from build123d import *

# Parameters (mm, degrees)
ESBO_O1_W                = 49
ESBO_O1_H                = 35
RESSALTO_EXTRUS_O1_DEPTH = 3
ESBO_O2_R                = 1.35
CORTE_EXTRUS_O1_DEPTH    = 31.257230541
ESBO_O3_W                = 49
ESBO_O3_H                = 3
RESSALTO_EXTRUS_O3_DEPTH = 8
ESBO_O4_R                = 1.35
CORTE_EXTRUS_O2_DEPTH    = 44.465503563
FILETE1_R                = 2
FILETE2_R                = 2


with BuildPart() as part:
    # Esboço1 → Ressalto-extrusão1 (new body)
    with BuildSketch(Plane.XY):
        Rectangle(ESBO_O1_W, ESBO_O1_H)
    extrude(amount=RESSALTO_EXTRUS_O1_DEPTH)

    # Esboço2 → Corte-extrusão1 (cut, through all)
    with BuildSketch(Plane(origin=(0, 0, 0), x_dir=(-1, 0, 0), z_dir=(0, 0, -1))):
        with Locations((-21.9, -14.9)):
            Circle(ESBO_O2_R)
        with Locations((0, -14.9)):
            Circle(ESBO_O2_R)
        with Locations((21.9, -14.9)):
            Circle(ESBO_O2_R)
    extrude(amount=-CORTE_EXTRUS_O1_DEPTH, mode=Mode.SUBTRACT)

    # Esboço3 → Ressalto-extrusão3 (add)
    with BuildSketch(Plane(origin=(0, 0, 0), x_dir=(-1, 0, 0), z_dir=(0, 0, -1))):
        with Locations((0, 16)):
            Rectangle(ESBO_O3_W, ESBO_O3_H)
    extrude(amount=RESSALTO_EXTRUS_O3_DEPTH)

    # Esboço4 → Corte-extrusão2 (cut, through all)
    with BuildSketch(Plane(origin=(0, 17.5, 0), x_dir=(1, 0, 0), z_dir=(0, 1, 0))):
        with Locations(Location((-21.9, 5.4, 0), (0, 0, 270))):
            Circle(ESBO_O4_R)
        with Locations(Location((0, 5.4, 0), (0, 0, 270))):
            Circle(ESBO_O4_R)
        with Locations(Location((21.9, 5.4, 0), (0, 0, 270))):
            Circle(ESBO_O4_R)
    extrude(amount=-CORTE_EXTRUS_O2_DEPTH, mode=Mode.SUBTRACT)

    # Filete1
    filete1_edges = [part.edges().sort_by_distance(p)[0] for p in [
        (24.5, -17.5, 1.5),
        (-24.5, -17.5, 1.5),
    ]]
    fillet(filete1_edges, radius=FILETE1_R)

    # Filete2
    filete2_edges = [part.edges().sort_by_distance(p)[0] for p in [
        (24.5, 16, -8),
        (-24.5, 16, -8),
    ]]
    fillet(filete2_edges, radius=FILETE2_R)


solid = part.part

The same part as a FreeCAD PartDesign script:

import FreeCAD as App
import Part
import Sketcher

V = App.Vector
Q = App.Units.Quantity


def edges_at(feature, points):
    """Names of the edges that pass closest to the given points."""
    edges = feature.Shape.Edges
    near = lambda p: min(range(len(edges)), key=lambda i: edges[i].distToShape(Part.Vertex(*p))[0])
    return sorted({f"Edge{near(p) + 1}" for p in points})


def add_polygon(sketch, points):
    """Adds a closed chain of lines whose ends are joined by coincident constraints."""
    first, n = sketch.GeometryCount, len(points)
    for a, b in zip(points, points[1:] + points[:1]):
        sketch.addGeometry(Part.LineSegment(App.Vector(*a, 0), App.Vector(*b, 0)), False)
    for i in range(n):
        sketch.addConstraint(Sketcher.Constraint("Coincident", first + i, 2, first + (i + 1) % n, 1))

doc = App.newDocument("Part")
body = doc.addObject("PartDesign::Body", "Body")

# Sketch on XY plane
sketch1 = doc.addObject("Sketcher::SketchObject", "Sketch")
body.addObject(sketch1)
sketch1.AttachmentSupport = (doc.XY_Plane, [""])
sketch1.MapMode = "FlatFace"
add_polygon(sketch1, [(-24, 18), (-24, -18), (24, -18), (24, 18)])  # lines 0-3
sketch1.addConstraint(Sketcher.Constraint("Vertical", 0))
sketch1.addConstraint(Sketcher.Constraint("Horizontal", 1))
sketch1.addConstraint(Sketcher.Constraint("Vertical", 2))
sketch1.addConstraint(Sketcher.Constraint("Horizontal", 3))
sketch1.addConstraint(Sketcher.Constraint("Symmetric", 0, 2, 2, 2, -1, 1))
sketch1.addConstraint(Sketcher.Constraint("DistanceX", 1, 1, 1, 2, Q("49 mm")))
sketch1.addConstraint(Sketcher.Constraint("DistanceY", 0, 2, 0, 1, Q("35 mm")))
pad1 = doc.addObject("PartDesign::Pad", "Pad")
body.addObject(pad1)
pad1.Profile = sketch1
pad1.Length = 3

# Sketch on XY plane
sketch2 = doc.addObject("Sketcher::SketchObject", "Sketch001")
body.addObject(sketch2)
sketch2.AttachmentSupport = (doc.XY_Plane, [""])
sketch2.MapMode = "FlatFace"
sketch2.addGeometry(Part.Circle(V(21.9, -14.9, 0), V(0, 0, 1), 1.4), False)
sketch2.addGeometry(Part.Circle(V(0, -14.9, 0), V(0, 0, 1), 1.4), False)
sketch2.addGeometry(Part.Circle(V(-21.9, -14.9, 0), V(0, 0, 1), 1.4), False)
sketch2.addConstraint(Sketcher.Constraint("Equal", 0, 1))
sketch2.addConstraint(Sketcher.Constraint("Equal", 1, 2))
sketch2.addConstraint(Sketcher.Constraint("Symmetric", 0, 3, 2, 3, -2))
sketch2.addConstraint(Sketcher.Constraint("PointOnObject", 1, 3, -2))
sketch2.addConstraint(Sketcher.Constraint("Horizontal", 0, 3, 1, 3))
sketch2.addConstraint(Sketcher.Constraint("Diameter", 0, Q("2.7 mm")))
sketch2.addConstraint(Sketcher.Constraint("DistanceX", -1, 1, 0, 3, Q("21.9 mm")))
sketch2.addConstraint(Sketcher.Constraint("DistanceY", 0, 3, -1, 1, Q("14.9 mm")))
pocket1 = doc.addObject("PartDesign::Pocket", "Pocket")
body.addObject(pocket1)
pocket1.Profile = sketch2
pocket1.Type = "ThroughAll"
pocket1.Reversed = True

# Sketch on XY plane
sketch3 = doc.addObject("Sketcher::SketchObject", "Sketch002")
body.addObject(sketch3)
sketch3.AttachmentSupport = (doc.XY_Plane, [""])
sketch3.MapMode = "FlatFace"
add_polygon(sketch3, [(24.5, 17.5), (24.5, 14.5), (-24.5, 14.5), (-24.5, 17.5)])  # lines 0-3
sketch3.addConstraint(Sketcher.Constraint("Vertical", 0))
sketch3.addConstraint(Sketcher.Constraint("Horizontal", 1))
sketch3.addConstraint(Sketcher.Constraint("Vertical", 2))
sketch3.addConstraint(Sketcher.Constraint("Horizontal", 3))
sketch3.addConstraint(Sketcher.Constraint("DistanceX", 1, 2, 1, 1, Q("49 mm")))
sketch3.addConstraint(Sketcher.Constraint("DistanceY", 0, 2, 0, 1, Q("3 mm")))
sketch3.addConstraint(Sketcher.Constraint("DistanceX", -1, 1, 0, 2, Q("24.5 mm")))
sketch3.addConstraint(Sketcher.Constraint("DistanceY", -1, 1, 0, 2, Q("14.5 mm")))
pad2 = doc.addObject("PartDesign::Pad", "Pad001")
body.addObject(pad2)
pad2.Profile = sketch3
pad2.Length = 8
pad2.Reversed = True

# Sketch on XZ plane
sketch4 = doc.addObject("Sketcher::SketchObject", "Sketch003")
body.addObject(sketch4)
sketch4.AttachmentSupport = (doc.XZ_Plane, [""])
sketch4.MapMode = "FlatFace"
sketch4.AttachmentOffset = App.Placement(V(0, 0, -17.5), App.Rotation())
sketch4.addGeometry(Part.Circle(V(-21.9, -5.4, 0), V(0, 0, 1), 1.4), False)
sketch4.addGeometry(Part.Circle(V(0, -5.4, 0), V(0, 0, 1), 1.4), False)
sketch4.addGeometry(Part.Circle(V(21.9, -5.4, 0), V(0, 0, 1), 1.4), False)
sketch4.addConstraint(Sketcher.Constraint("Equal", 0, 1))
sketch4.addConstraint(Sketcher.Constraint("Equal", 1, 2))
sketch4.addConstraint(Sketcher.Constraint("Symmetric", 0, 3, 2, 3, -2))
sketch4.addConstraint(Sketcher.Constraint("PointOnObject", 1, 3, -2))
sketch4.addConstraint(Sketcher.Constraint("Horizontal", 0, 3, 1, 3))
sketch4.addConstraint(Sketcher.Constraint("Diameter", 0, Q("2.7 mm")))
sketch4.addConstraint(Sketcher.Constraint("DistanceX", 0, 3, -1, 1, Q("21.9 mm")))
sketch4.addConstraint(Sketcher.Constraint("DistanceY", 0, 3, -1, 1, Q("5.4 mm")))
pocket2 = doc.addObject("PartDesign::Pocket", "Pocket001")
body.addObject(pocket2)
pocket2.Profile = sketch4
pocket2.Type = "ThroughAll"
pocket2.Reversed = True
doc.recompute()

fillet = doc.addObject("PartDesign::Fillet", "Fillet")
body.addObject(fillet)
fillet.Base = (pocket2, edges_at(pocket2, [(24.5, -17.5, 1.5), (-24.5, -17.5, 1.5)]))
fillet.Radius = 2
doc.recompute()

fillet2 = doc.addObject("PartDesign::Fillet", "Fillet001")
body.addObject(fillet2)
fillet2.Base = (fillet, edges_at(fillet, [(24.5, 16, -8), (-24.5, 16, -8)]))
fillet2.Radius = 2

doc.recompute()
